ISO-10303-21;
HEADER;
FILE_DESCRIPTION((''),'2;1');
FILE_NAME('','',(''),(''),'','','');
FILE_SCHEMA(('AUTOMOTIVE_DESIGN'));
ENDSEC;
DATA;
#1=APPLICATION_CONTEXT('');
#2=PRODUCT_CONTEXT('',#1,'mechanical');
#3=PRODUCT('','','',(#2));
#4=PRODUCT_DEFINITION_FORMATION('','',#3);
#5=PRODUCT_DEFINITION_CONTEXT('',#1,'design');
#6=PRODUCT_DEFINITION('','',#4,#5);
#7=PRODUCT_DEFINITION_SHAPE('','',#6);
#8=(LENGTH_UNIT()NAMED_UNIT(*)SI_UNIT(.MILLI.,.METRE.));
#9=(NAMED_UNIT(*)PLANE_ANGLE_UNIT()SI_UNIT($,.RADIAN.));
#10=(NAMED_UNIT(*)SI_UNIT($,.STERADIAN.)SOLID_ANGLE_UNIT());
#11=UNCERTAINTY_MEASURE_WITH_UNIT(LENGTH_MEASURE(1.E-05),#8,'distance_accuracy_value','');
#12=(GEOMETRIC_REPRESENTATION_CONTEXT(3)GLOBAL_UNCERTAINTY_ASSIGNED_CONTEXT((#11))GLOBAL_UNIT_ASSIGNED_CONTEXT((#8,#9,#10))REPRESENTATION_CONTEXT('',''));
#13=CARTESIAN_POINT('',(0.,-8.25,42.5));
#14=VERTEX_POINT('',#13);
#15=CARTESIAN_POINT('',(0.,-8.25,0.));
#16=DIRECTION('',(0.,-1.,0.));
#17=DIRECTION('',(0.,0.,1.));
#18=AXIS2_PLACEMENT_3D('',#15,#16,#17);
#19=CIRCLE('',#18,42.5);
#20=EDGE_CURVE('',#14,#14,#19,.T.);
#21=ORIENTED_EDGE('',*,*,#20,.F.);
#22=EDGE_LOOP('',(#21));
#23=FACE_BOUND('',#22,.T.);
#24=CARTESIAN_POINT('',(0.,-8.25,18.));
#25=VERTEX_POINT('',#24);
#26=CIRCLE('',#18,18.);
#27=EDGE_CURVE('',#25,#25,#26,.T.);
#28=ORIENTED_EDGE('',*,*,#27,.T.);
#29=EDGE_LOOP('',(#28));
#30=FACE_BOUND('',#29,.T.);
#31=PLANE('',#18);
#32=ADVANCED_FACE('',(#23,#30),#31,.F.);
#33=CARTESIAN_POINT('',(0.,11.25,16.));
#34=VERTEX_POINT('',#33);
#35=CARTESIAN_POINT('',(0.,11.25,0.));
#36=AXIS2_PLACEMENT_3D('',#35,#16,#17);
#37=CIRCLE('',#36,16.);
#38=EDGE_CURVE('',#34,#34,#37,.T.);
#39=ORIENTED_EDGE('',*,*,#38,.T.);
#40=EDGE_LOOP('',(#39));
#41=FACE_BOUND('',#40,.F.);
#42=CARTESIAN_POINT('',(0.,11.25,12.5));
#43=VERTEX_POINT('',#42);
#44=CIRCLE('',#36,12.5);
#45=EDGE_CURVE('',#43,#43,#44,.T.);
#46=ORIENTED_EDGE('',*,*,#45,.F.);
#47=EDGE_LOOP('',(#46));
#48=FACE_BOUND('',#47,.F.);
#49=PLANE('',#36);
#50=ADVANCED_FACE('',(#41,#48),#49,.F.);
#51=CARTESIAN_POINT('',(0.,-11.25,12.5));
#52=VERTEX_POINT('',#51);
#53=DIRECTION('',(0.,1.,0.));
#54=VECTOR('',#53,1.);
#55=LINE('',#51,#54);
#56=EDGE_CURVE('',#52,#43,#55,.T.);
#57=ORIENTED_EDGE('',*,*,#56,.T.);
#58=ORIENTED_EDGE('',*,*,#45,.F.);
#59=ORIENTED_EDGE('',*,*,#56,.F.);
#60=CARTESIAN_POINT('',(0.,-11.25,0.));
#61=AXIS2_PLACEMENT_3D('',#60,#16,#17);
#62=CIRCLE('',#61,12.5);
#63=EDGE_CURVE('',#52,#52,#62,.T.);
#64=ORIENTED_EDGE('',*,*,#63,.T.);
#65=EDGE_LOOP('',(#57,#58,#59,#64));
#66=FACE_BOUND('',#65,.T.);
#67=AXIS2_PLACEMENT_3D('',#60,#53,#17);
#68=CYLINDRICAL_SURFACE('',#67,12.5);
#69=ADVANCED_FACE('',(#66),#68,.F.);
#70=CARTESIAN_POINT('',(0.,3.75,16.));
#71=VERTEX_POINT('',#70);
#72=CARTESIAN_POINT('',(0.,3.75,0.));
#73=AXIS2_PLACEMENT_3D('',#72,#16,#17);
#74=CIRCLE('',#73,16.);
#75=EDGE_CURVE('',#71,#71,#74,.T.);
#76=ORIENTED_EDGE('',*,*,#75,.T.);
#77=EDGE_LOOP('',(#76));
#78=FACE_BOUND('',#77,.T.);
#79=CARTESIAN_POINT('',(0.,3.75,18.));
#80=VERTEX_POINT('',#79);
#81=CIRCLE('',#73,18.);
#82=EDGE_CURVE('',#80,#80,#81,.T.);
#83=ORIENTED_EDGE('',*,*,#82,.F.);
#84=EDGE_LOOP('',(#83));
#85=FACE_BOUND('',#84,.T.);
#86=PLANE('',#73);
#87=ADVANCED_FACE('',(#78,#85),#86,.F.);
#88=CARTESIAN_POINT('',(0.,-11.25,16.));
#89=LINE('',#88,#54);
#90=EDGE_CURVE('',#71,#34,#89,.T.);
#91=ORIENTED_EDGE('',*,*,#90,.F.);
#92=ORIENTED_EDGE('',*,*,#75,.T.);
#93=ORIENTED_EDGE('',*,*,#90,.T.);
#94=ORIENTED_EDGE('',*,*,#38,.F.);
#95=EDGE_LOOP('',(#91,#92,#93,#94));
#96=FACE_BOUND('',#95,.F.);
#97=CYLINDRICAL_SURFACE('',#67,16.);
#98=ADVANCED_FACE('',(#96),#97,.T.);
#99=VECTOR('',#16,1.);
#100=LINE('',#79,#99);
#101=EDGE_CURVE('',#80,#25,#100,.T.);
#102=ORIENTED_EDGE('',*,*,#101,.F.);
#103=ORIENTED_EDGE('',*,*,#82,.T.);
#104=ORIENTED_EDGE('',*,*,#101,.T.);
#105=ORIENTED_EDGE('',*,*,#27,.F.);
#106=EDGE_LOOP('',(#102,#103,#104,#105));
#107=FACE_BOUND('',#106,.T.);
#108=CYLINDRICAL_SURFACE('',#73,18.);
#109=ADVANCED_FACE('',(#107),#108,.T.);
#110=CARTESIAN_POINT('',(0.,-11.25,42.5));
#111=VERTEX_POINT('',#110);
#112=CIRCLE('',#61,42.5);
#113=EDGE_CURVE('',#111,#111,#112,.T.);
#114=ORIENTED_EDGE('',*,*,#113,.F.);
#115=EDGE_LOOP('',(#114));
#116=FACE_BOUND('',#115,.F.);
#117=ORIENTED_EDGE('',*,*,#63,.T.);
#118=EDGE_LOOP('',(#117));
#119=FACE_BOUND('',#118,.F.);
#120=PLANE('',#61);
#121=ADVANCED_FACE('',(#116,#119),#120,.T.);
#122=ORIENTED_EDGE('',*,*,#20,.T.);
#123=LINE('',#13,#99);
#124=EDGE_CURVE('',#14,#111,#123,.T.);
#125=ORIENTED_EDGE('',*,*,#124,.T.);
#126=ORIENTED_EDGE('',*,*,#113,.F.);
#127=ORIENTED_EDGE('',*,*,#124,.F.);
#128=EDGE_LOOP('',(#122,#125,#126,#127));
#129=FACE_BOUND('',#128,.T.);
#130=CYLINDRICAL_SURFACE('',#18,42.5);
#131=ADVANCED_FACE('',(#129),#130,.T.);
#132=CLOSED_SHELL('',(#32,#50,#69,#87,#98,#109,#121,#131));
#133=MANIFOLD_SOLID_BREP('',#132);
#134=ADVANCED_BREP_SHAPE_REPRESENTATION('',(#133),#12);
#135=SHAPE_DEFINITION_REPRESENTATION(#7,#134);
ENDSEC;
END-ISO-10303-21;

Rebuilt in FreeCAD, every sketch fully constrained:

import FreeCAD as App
import Part
import Sketcher


def add_polygon(sketch, points):
    """Adds a closed chain of lines whose ends are joined by coincident constraints."""
    first, n = sketch.GeometryCount, len(points)
    for a, b in zip(points, points[1:] + points[:1]):
        sketch.addGeometry(Part.LineSegment(App.Vector(*a, 0), App.Vector(*b, 0)), False)
    for i in range(n):
        sketch.addConstraint(Sketcher.Constraint("Coincident", first + i, 2, first + (i + 1) % n, 1))

doc = App.newDocument("Part")
params = doc.addObject("Spreadsheet::Sheet", "Params")
for row, (alias, value) in enumerate([
    ("sketch1_width", "22.5 mm"),
    ("sketch1_width2", "7.5 mm"),
    ("revolution_angle", "360 deg"),
], start=1):
    params.set(f"A{row}", alias)
    params.set(f"B{row}", "=" + value)
    params.setAlias(f"B{row}", alias)

body = doc.addObject("PartDesign::Body", "Body")

sketch1 = body.newObject("Sketcher::SketchObject", "Sketch")
sketch1.AttachmentSupport = (doc.getObject("YZ_Plane"), [""])
sketch1.MapMode = "FlatFace"
add_polygon(sketch1, [(-11.25, 12.5), (11.25, 12.5), (11.25, 16), (3.75, 16), (3.75, 18), (-8.25, 18), (-8.25, 42.5), (-11.25, 42.5)])
sketch1.addConstraint([
    Sketcher.Constraint("Horizontal", 0),
    Sketcher.Constraint("Vertical", 1),
    Sketcher.Constraint("Horizontal", 2),
    Sketcher.Constraint("Vertical", 3),
    Sketcher.Constraint("Horizontal", 4),
    Sketcher.Constraint("Vertical", 5),
    Sketcher.Constraint("Horizontal", 6),
    Sketcher.Constraint("Vertical", 7),
    Sketcher.Constraint("DistanceX", 0, 1, 0, 2, 22.5),
    Sketcher.Constraint("DistanceX", 2, 2, 2, 1, 7.5),
    Sketcher.Constraint("DistanceY", -1, 1, 1, 2, 16.0),
    Sketcher.Constraint("DistanceY", -1, 1, 3, 2, 18.0),
    Sketcher.Constraint("DistanceY", -1, 1, 0, 2, 12.5),
    Sketcher.Constraint("DistanceY", -1, 1, 5, 2, 42.5),
    Sketcher.Constraint("DistanceX", 4, 2, 1, 2, 19.5),
    Sketcher.Constraint("DistanceX", -1, 1, 0, 2, 11.25),
])
sketch1.setExpression("Constraints[16]", "Params.sketch1_width")
sketch1.setExpression("Constraints[17]", "Params.sketch1_width2")
revolution = body.newObject("PartDesign::Revolution", "Revolution")
revolution.Profile = sketch1
revolution.ReferenceAxis = (sketch1, ["H_Axis"])
revolution.setExpression("Angle", "Params.revolution_angle")

doc.recompute()
